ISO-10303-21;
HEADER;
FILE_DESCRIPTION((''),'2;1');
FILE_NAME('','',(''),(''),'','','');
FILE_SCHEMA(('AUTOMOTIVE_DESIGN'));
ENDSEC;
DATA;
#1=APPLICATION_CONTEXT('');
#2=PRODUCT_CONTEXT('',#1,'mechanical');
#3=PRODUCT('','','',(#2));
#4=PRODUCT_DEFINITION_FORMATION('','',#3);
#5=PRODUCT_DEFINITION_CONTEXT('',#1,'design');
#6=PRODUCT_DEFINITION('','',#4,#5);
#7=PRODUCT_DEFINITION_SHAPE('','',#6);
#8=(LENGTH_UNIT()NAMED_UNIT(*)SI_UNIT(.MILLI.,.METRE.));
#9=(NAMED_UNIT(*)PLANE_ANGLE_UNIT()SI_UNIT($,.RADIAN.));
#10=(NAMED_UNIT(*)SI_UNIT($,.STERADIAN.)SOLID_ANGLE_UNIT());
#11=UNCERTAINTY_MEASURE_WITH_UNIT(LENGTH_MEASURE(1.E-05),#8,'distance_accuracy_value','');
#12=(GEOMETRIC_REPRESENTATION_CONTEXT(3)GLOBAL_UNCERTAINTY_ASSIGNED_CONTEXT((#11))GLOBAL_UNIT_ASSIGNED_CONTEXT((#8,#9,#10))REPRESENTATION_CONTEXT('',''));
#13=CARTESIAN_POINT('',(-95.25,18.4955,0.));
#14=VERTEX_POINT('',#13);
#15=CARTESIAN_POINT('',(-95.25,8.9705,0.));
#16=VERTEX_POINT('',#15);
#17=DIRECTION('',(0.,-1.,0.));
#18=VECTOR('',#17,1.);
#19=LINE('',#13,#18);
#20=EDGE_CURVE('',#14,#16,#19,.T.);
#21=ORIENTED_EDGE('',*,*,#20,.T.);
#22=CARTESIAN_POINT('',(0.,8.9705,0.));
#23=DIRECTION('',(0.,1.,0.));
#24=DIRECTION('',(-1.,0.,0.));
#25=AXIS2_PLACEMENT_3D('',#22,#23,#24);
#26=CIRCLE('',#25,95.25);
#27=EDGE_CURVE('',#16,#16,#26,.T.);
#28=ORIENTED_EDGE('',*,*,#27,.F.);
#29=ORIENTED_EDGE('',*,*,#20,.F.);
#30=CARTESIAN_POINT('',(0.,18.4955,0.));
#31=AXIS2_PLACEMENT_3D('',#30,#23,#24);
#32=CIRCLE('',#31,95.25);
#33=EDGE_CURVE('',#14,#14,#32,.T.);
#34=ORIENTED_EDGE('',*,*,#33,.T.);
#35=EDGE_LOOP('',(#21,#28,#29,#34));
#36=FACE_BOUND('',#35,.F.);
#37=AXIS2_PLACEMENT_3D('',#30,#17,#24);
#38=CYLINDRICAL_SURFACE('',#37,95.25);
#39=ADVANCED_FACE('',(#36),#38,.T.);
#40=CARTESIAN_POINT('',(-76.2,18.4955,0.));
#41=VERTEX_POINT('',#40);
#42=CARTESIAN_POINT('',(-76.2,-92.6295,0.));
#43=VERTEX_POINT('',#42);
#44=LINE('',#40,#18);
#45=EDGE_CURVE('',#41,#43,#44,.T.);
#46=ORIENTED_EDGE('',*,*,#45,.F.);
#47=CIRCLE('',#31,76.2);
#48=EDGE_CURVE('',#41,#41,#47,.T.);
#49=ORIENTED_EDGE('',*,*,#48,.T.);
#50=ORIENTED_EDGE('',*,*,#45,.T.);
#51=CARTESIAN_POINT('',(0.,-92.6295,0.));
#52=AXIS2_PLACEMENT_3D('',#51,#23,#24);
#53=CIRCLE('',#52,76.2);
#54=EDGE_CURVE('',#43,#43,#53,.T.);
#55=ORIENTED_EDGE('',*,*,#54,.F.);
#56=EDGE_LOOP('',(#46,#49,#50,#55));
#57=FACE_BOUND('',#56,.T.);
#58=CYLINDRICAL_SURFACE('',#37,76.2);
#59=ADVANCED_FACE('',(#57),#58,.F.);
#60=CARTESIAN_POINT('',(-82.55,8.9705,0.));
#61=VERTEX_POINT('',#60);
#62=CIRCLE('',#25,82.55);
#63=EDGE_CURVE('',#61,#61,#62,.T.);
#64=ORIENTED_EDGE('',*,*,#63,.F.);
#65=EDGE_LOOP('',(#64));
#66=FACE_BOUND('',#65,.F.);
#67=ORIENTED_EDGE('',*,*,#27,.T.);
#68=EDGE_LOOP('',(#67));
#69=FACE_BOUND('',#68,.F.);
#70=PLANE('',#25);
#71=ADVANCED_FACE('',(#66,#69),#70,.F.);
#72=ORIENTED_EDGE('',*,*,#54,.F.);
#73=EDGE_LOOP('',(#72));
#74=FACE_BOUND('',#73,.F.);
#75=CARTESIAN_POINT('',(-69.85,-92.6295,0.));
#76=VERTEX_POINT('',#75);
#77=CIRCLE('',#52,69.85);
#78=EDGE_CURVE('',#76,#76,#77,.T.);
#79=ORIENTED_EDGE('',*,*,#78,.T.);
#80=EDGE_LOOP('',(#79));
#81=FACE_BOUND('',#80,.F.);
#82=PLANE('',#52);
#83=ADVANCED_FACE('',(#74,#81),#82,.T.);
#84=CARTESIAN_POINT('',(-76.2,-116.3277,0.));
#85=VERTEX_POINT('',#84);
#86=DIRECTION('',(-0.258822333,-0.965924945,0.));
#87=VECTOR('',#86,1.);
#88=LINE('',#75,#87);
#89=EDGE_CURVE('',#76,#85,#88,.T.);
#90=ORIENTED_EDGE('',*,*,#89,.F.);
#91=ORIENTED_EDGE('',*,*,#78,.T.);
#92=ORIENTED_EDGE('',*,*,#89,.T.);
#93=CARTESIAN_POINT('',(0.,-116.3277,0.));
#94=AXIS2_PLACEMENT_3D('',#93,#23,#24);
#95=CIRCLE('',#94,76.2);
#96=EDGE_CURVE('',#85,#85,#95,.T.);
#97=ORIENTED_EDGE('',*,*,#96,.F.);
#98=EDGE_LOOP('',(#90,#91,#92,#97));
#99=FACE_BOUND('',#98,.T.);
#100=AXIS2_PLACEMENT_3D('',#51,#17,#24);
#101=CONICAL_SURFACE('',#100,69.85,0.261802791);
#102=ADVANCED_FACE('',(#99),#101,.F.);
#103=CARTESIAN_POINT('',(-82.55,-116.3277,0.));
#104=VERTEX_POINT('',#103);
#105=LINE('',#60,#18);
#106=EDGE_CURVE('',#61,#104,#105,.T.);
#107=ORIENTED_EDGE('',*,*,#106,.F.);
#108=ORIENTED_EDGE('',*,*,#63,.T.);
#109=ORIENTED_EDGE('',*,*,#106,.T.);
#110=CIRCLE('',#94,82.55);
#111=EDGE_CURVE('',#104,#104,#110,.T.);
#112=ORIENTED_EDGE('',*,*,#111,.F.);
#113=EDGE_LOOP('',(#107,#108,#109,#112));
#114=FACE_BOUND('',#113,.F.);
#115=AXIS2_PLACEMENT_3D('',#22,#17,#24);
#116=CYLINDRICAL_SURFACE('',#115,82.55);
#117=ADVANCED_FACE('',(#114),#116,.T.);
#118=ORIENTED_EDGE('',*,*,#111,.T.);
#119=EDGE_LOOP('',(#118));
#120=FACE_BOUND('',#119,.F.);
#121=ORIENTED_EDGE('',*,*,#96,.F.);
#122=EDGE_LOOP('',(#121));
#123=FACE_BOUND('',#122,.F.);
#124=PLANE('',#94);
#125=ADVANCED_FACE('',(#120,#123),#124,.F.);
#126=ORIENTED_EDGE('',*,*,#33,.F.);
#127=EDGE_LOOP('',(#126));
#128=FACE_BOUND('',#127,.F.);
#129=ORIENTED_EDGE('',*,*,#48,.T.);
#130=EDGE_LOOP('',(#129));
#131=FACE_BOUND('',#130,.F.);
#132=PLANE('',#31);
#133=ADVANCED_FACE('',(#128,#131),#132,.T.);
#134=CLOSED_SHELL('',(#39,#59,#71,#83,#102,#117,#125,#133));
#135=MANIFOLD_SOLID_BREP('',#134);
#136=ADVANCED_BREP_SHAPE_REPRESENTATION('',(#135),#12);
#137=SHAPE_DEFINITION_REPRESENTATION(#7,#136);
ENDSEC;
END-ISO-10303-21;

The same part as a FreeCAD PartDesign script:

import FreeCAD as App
import Part
import Sketcher
Q = App.Units.Quantity


def add_polygon(sketch, points):
    """Adds a closed chain of lines whose ends are joined by coincident constraints."""
    first, n = sketch.GeometryCount, len(points)
    for a, b in zip(points, points[1:] + points[:1]):
        sketch.addGeometry(Part.LineSegment(App.Vector(*a, 0), App.Vector(*b, 0)), False)
    for i in range(n):
        sketch.addConstraint(Sketcher.Constraint("Coincident", first + i, 2, first + (i + 1) % n, 1))

doc = App.newDocument("Part")
body = doc.addObject("PartDesign::Body", "Body")

# Sketch on XY plane
sketch1 = body.newObject("Sketcher::SketchObject", "Sketch")
sketch1.AttachmentSupport = (doc.getObject("XY_Plane"), [""])
sketch1.MapMode = "FlatFace"
add_polygon(sketch1, [(-76, -93), (-76, 18), (-95, 18), (-95, 9), (-83, 9), (-83, -116), (-76, -116), (-70, -93)])  # lines 0-7
sketch1.addConstraint(Sketcher.Constraint("Vertical", 0))
sketch1.addConstraint(Sketcher.Constraint("Horizontal", 1))
sketch1.addConstraint(Sketcher.Constraint("Vertical", 2))
sketch1.addConstraint(Sketcher.Constraint("Horizontal", 3))
sketch1.addConstraint(Sketcher.Constraint("Vertical", 4))
sketch1.addConstraint(Sketcher.Constraint("Horizontal", 5))
sketch1.addConstraint(Sketcher.Constraint("Horizontal", 7))
sketch1.addConstraint(Sketcher.Constraint("Vertical", 0, 2, 5, 2))
sketch1.addConstraint(Sketcher.Constraint("Equal", 5, 7))
sketch1.addConstraint(Sketcher.Constraint("DistanceX", 3, 1, 3, 2, Q("0.5 in")))
sketch1.addConstraint(Sketcher.Constraint("DistanceX", 1, 2, 1, 1, Q("0.75 in")))
sketch1.addConstraint(Sketcher.Constraint("DistanceY", 0, 1, 0, 2, Q("4.375 in")))
sketch1.addConstraint(Sketcher.Constraint("DistanceY", 2, 2, 2, 1, Q("0.375 in")))
sketch1.addConstraint(Sketcher.Constraint("DistanceY", 4, 2, 4, 1, Q("4.933 in")))
sketch1.addConstraint(Sketcher.Constraint("DistanceX", 1, 2, -1, 1, Q("3.75 in")))
sketch1.addConstraint(Sketcher.Constraint("DistanceY", -1, 1, 0, 2, Q("18.4955 mm")))
revolution = body.newObject("PartDesign::Revolution", "Revolution")
revolution.Profile = sketch1
revolution.ReferenceAxis = (sketch1, ["V_Axis"])
revolution.Angle = 360

doc.recompute()
